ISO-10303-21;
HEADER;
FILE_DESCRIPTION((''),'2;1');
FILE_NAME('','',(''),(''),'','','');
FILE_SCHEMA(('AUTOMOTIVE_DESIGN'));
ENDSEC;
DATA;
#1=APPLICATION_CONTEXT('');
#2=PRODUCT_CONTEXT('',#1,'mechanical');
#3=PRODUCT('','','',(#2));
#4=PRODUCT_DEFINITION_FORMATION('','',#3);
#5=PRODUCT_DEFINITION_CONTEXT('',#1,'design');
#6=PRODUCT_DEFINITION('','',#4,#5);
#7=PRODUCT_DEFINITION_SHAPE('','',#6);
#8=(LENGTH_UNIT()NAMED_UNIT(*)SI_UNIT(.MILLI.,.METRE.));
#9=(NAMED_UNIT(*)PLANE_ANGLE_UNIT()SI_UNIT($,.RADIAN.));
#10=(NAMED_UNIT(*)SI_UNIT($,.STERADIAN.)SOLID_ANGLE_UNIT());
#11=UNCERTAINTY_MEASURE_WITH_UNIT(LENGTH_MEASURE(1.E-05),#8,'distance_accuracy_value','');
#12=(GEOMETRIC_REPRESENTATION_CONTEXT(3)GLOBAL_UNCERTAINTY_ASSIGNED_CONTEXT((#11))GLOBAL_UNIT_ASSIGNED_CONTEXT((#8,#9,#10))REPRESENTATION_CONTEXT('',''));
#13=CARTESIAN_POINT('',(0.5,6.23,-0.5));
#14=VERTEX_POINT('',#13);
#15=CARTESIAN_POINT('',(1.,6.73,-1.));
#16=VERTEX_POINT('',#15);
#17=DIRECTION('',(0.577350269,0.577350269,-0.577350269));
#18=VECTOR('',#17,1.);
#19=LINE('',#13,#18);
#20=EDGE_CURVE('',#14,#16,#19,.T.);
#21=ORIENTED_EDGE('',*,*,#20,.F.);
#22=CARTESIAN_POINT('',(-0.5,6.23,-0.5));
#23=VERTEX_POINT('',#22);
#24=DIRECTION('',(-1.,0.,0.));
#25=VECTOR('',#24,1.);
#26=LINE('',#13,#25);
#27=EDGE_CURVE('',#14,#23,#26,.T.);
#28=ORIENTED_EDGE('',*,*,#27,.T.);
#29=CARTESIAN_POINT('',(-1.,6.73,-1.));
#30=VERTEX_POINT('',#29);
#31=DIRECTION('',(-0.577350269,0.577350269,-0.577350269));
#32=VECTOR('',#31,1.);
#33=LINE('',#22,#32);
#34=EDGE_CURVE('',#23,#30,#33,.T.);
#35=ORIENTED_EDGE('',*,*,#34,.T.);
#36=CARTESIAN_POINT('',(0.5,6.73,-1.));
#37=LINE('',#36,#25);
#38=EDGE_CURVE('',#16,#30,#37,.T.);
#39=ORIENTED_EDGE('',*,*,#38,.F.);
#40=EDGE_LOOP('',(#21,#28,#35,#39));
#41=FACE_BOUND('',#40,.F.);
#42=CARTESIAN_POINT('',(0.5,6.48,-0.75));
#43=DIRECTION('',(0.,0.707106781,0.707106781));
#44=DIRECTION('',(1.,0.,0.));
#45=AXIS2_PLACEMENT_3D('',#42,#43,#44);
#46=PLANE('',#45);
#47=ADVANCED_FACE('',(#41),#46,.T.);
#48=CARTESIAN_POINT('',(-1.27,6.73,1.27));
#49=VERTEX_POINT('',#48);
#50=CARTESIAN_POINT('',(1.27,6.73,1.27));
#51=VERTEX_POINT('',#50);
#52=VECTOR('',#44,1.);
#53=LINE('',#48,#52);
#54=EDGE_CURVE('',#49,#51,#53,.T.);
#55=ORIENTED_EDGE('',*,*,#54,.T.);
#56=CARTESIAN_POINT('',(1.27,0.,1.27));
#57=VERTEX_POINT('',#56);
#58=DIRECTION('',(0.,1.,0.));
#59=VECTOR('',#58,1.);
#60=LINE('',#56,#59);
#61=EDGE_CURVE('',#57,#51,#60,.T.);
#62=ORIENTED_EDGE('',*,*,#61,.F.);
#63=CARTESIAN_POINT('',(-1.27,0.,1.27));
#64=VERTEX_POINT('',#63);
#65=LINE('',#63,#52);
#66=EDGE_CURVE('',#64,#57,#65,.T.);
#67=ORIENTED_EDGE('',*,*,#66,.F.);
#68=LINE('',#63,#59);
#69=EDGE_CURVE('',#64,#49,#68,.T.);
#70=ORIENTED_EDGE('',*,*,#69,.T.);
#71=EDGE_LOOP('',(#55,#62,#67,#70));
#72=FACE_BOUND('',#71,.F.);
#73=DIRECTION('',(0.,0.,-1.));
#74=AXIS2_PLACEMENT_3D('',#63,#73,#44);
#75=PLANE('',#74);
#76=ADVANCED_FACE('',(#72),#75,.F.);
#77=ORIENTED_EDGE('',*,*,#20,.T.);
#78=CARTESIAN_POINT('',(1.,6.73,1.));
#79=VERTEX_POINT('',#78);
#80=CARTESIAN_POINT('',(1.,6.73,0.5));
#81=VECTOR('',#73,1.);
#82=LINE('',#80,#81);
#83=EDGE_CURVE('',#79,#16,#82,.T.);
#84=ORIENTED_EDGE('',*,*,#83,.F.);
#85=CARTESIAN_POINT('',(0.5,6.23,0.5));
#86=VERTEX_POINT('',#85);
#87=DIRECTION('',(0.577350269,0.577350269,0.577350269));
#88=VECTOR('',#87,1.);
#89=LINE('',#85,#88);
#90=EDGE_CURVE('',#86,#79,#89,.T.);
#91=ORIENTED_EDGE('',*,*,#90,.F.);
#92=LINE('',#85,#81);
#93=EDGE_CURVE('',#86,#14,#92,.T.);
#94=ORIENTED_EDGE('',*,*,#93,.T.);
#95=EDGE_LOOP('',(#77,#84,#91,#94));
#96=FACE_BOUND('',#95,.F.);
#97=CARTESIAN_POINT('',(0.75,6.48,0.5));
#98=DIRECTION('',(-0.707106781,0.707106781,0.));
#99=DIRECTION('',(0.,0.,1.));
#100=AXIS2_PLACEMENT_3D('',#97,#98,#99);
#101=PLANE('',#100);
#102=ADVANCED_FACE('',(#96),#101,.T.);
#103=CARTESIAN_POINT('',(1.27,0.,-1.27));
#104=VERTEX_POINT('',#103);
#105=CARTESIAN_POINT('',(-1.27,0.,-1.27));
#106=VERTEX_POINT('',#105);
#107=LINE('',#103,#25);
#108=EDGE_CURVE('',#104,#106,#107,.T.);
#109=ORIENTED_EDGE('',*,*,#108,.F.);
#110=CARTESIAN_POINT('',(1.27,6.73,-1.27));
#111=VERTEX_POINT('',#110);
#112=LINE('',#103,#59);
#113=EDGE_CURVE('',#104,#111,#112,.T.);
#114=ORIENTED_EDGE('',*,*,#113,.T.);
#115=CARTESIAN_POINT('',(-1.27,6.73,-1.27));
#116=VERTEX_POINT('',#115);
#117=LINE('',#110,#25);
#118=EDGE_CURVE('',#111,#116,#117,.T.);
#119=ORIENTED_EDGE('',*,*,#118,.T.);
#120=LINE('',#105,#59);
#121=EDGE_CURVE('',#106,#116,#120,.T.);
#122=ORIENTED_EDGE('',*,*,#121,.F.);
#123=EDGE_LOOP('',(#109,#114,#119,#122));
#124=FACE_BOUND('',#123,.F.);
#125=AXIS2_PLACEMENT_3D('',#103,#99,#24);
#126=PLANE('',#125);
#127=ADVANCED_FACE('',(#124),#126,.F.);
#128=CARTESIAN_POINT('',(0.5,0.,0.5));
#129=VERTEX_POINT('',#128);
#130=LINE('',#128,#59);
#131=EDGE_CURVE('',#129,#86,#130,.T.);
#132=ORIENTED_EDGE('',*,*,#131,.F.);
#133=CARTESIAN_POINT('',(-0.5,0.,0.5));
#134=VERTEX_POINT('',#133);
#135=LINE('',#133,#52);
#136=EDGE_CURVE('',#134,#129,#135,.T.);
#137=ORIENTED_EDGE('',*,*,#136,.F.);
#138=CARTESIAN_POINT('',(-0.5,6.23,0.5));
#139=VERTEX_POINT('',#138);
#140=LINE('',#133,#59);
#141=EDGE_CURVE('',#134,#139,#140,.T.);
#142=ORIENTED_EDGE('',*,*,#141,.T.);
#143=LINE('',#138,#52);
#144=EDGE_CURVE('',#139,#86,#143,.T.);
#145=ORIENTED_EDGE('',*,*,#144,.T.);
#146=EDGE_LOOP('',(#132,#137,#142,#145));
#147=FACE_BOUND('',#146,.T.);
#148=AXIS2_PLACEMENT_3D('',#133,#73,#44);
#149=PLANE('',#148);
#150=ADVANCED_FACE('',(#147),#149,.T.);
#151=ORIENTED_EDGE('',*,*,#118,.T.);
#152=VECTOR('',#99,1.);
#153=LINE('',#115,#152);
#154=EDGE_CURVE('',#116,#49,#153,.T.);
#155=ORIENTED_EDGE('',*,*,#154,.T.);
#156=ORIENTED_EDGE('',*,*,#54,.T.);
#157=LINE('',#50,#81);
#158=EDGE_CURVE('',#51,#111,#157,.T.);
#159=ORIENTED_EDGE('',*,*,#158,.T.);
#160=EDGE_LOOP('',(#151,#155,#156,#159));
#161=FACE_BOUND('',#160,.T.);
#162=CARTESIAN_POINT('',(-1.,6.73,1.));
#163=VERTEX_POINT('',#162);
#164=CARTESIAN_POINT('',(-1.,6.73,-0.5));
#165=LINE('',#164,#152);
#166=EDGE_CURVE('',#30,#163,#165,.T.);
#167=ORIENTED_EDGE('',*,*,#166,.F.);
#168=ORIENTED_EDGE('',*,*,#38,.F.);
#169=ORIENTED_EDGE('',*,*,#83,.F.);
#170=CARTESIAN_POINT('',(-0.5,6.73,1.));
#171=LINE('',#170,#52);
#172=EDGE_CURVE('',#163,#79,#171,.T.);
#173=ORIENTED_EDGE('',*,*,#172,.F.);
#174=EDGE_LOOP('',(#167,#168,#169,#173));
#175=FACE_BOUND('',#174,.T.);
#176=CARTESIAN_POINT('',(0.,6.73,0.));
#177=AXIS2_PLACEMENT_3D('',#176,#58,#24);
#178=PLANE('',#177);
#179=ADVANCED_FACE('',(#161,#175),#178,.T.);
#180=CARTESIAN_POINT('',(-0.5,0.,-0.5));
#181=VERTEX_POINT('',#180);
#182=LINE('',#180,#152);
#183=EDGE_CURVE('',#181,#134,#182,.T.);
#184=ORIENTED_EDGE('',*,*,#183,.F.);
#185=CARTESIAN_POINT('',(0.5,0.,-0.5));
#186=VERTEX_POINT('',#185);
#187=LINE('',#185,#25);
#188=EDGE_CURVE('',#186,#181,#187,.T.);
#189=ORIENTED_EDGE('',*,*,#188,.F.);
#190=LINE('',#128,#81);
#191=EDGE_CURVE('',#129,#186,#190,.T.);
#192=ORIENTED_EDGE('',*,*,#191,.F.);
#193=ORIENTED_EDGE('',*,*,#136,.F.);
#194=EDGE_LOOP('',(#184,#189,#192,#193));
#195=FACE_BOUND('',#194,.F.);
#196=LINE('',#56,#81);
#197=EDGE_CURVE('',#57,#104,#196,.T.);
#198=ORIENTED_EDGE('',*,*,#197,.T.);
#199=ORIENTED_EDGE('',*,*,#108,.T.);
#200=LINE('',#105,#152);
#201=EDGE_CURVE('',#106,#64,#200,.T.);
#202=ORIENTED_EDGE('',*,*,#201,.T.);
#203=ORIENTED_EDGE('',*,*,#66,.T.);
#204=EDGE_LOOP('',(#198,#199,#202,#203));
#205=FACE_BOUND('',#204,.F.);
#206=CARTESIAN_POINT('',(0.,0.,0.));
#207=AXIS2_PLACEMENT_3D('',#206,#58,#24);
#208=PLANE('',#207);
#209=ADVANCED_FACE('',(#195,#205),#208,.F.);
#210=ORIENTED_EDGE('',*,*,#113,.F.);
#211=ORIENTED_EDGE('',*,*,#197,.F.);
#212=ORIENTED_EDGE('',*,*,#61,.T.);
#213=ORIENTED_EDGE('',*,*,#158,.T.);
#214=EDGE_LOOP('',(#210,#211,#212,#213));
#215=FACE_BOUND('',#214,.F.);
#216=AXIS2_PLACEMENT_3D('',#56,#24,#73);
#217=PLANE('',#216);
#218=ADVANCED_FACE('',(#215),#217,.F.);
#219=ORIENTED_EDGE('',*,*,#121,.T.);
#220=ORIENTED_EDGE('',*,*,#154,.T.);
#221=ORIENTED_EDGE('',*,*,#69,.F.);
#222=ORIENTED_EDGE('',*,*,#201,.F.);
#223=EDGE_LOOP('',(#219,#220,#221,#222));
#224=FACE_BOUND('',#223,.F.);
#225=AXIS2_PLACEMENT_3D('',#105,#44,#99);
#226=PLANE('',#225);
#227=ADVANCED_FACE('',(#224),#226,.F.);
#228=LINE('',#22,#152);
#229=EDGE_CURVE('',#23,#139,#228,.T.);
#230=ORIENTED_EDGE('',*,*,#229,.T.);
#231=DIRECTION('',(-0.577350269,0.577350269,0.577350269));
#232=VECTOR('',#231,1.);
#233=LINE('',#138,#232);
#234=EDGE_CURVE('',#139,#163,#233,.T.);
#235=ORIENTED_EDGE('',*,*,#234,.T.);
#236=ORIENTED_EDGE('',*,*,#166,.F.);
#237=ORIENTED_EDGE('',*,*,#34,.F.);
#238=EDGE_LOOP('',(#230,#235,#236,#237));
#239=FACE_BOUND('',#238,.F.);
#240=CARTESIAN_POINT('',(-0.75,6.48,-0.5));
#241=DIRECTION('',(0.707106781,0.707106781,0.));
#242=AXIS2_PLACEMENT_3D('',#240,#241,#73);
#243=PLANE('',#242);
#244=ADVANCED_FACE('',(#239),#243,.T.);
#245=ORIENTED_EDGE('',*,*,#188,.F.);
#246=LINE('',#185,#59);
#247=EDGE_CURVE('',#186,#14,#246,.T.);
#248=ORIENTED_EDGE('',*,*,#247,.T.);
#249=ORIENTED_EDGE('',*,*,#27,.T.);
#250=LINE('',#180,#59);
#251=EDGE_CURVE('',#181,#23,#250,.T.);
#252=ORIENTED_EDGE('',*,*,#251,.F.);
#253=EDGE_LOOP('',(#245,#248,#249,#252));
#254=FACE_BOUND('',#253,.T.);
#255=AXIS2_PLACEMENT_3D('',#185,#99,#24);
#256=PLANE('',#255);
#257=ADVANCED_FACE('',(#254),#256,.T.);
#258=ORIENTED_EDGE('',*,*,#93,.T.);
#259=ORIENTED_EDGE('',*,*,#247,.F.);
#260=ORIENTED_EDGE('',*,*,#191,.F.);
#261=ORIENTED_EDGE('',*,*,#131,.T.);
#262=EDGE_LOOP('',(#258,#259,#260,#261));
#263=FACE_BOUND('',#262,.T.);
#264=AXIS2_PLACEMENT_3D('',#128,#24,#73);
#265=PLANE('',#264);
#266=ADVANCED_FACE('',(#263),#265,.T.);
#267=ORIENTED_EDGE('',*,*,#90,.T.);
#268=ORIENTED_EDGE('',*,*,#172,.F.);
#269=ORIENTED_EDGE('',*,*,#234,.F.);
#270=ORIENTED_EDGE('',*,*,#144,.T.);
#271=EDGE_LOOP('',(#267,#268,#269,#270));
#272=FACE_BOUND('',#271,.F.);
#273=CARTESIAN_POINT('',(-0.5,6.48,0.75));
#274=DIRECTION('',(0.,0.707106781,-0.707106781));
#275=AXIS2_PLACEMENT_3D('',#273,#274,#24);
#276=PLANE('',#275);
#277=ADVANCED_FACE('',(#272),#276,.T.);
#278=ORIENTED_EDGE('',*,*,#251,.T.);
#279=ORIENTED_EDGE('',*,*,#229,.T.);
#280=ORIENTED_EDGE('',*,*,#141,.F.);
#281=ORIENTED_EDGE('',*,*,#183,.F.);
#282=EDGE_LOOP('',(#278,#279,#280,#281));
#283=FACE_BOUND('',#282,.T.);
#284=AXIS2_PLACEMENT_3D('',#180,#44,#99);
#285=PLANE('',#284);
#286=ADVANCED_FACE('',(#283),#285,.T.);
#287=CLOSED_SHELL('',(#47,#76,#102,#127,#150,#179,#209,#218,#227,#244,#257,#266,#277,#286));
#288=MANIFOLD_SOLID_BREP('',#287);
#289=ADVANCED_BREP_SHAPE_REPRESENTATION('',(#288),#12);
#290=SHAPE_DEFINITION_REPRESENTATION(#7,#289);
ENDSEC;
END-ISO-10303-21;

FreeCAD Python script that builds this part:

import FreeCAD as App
import Part
import Sketcher


def edges_at(feature, points):
    """Names of the edges that pass closest to the given points."""
    edges = feature.Shape.Edges
    near = lambda p: min(range(len(edges)), key=lambda i: edges[i].distToShape(Part.Vertex(*p))[0])
    return sorted({f"Edge{near(p) + 1}" for p in points})


def add_polygon(sketch, points):
    """Adds a closed chain of lines whose ends are joined by coincident constraints."""
    first, n = sketch.GeometryCount, len(points)
    for a, b in zip(points, points[1:] + points[:1]):
        sketch.addGeometry(Part.LineSegment(App.Vector(*a, 0), App.Vector(*b, 0)), False)
    for i in range(n):
        sketch.addConstraint(Sketcher.Constraint("Coincident", first + i, 2, first + (i + 1) % n, 1))

doc = App.newDocument("Part")
body = doc.addObject("PartDesign::Body", "Body")

sketch1 = body.newObject("Sketcher::SketchObject", "Sketch")
sketch1.AttachmentSupport = (doc.getObject("XZ_Plane"), [""])
sketch1.MapMode = "FlatFace"
add_polygon(sketch1, [(-1.3, -1.3), (-1.3, 1.3), (1.3, 1.3), (1.3, -1.3)])
add_polygon(sketch1, [(0.5, 0.5), (-0.5, 0.5), (-0.5, -0.5), (0.5, -0.5)])
sketch1.addConstraint(Sketcher.Constraint("Vertical", 0))
sketch1.addConstraint(Sketcher.Constraint("Horizontal", 1))
sketch1.addConstraint(Sketcher.Constraint("Vertical", 2))
sketch1.addConstraint(Sketcher.Constraint("Horizontal", 3))
sketch1.addConstraint(Sketcher.Constraint("Horizontal", 4))
sketch1.addConstraint(Sketcher.Constraint("Vertical", 5))
sketch1.addConstraint(Sketcher.Constraint("Horizontal", 6))
sketch1.addConstraint(Sketcher.Constraint("Vertical", 7))
sketch1.addConstraint(Sketcher.Constraint("Symmetric", 0, 2, 2, 2, -1, 1))
sketch1.addConstraint(Sketcher.Constraint("Symmetric", 4, 2, 6, 2, -1, 1))
sketch1.addConstraint(Sketcher.Constraint("Equal", 3, 0))
sketch1.addConstraint(Sketcher.Constraint("Equal", 6, 5))
sketch1.addConstraint(Sketcher.Constraint("DistanceX", 4, 2, 4, 1, 1.0))
sketch1.addConstraint(Sketcher.Constraint("DistanceX", 1, 1, 1, 2, 2.54))
pad1 = body.newObject("PartDesign::Pad", "Pad")
pad1.Profile = sketch1
pad1.Length = 6.73
pad1.Reversed = True
doc.recompute()

chamfer = body.newObject("PartDesign::Chamfer", "Chamfer")
chamfer.Base = (pad1, edges_at(pad1, [
    (-0.5, 6.73, 0),
    (0, 6.73, -0.5),
    (0.5, 6.73, 0),
    (0, 6.73, 0.5),
]))
chamfer.Size = 0.5

doc.recompute()
